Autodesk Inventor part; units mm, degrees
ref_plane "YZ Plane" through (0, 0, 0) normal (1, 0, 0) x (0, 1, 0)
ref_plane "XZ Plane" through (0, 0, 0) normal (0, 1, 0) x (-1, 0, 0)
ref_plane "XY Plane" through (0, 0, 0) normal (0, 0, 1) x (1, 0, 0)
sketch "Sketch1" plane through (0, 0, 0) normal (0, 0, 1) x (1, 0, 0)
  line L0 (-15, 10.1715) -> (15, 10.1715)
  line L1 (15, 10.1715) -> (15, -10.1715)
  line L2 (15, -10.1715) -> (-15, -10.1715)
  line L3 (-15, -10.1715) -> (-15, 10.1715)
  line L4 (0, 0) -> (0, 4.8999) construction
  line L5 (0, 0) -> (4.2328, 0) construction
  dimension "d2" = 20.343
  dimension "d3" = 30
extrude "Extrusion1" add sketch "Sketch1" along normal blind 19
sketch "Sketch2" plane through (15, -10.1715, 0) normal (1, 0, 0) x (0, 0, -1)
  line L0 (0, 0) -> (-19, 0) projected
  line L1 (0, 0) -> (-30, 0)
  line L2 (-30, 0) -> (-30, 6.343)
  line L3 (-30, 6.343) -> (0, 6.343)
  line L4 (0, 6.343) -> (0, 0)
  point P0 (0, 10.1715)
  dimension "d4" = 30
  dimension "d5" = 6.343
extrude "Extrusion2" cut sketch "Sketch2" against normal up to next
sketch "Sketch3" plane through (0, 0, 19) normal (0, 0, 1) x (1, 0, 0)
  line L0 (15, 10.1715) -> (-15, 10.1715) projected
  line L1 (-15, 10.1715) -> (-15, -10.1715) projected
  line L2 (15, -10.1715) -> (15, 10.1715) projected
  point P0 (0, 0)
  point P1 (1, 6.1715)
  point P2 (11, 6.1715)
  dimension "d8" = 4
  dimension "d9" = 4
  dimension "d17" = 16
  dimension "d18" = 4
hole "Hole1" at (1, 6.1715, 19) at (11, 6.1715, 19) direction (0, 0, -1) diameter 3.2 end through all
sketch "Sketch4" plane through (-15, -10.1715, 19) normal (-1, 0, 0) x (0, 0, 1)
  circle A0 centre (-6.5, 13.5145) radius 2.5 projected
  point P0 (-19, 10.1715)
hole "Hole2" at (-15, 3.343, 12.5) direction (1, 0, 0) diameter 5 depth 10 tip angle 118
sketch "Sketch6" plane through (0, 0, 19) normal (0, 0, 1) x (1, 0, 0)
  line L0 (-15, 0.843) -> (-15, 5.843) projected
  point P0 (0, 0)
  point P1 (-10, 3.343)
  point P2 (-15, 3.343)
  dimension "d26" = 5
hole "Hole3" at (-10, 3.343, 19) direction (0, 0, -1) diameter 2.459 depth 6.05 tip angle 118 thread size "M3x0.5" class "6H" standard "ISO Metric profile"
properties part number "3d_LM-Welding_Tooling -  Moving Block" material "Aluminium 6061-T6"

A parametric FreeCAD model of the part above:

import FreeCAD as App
import Part
import Sketcher


def add_polygon(sketch, points):
    """Adds a closed chain of lines whose ends are joined by coincident constraints."""
    first, n = sketch.GeometryCount, len(points)
    for a, b in zip(points, points[1:] + points[:1]):
        sketch.addGeometry(Part.LineSegment(App.Vector(*a, 0), App.Vector(*b, 0)), False)
    for i in range(n):
        sketch.addConstraint(Sketcher.Constraint("Coincident", first + i, 2, first + (i + 1) % n, 1))

doc = App.newDocument("Part")
body = doc.addObject("PartDesign::Body", "Body")

# Sketch on XY plane
sketch1 = body.newObject("Sketcher::SketchObject", "Sketch")
sketch1.AttachmentSupport = (doc.getObject("XY_Plane"), [""])
sketch1.MapMode = "FlatFace"
add_polygon(sketch1, [(15, 10), (-15, 10), (-15, -10), (15, -10)])  # lines 0-3
sketch1.addConstraint([
    Sketcher.Constraint("Horizontal", 0),
    Sketcher.Constraint("Vertical", 1),
    Sketcher.Constraint("Horizontal", 2),
    Sketcher.Constraint("Vertical", 3),
    Sketcher.Constraint("Symmetric", 0, 2, 2, 2, -1, 1),
    Sketcher.Constraint("DistanceX", 0, 2, 0, 1, 30.0),
    Sketcher.Constraint("DistanceY", 1, 2, 1, 1, 20.343),
])
pad1 = body.newObject("PartDesign::Pad", "Pad")
pad1.Profile = sketch1
pad1.Length = 19

# Sketch on YZ plane
sketch2 = body.newObject("Sketcher::SketchObject", "Sketch001")
sketch2.AttachmentSupport = (doc.getObject("YZ_Plane"), [""])
sketch2.MapMode = "FlatFace"
sketch2.AttachmentOffset = App.Placement(App.Vector(0, 0, 15), App.Rotation())
add_polygon(sketch2, [(-10, 30), (-10, 0), (-4, 0), (-4, 30)])  # lines 0-3
sketch2.addConstraint([
    Sketcher.Constraint("Vertical", 0),
    Sketcher.Constraint("Horizontal", 1),
    Sketcher.Constraint("Vertical", 2),
    Sketcher.Constraint("Horizontal", 3),
    Sketcher.Constraint("PointOnObject", 0, 2, -1),
    Sketcher.Constraint("DistanceY", 0, 2, 0, 1, 30.0),
    Sketcher.Constraint("DistanceX", 1, 1, 1, 2, 6.343),
    Sketcher.Constraint("DistanceX", 0, 2, -1, 1, 10.1715),
])
pocket1 = body.newObject("PartDesign::Pocket", "Pocket")
pocket1.Profile = sketch2
pocket1.Type = "UpToFirst"

# Sketch on XY plane
sketch3 = body.newObject("Sketcher::SketchObject", "Sketch002")
sketch3.AttachmentSupport = (doc.getObject("XY_Plane"), [""])
sketch3.MapMode = "FlatFace"
sketch3.AttachmentOffset = App.Placement(App.Vector(0, 0, 19), App.Rotation())
sketch3.addGeometry([
    Part.Circle(App.Vector(1, 6.2, 0), App.Vector(0, 0, 1), 1.6),
    Part.Circle(App.Vector(11, 6.2, 0), App.Vector(0, 0, 1), 1.6),
], False)
sketch3.addConstraint([
    Sketcher.Constraint("Equal", 0, 1),
    Sketcher.Constraint("Horizontal", 0, 3, 1, 3),
    Sketcher.Constraint("Diameter", 0, 3.2),
    Sketcher.Constraint("DistanceX", -1, 1, 0, 3, 1.0),
    Sketcher.Constraint("DistanceX", -1, 1, 1, 3, 11.0),
    Sketcher.Constraint("DistanceY", -1, 1, 0, 3, 6.1715),
])
doc.recompute()
hole = body.newObject("PartDesign::Hole", "Hole")
hole.Profile = sketch3
hole.ThreadType = "None"
hole.Diameter = 3.2
hole.DepthType = "ThroughAll"

# Sketch on YZ plane
sketch4 = body.newObject("Sketcher::SketchObject", "Sketch003")
sketch4.AttachmentSupport = (doc.getObject("YZ_Plane"), [""])
sketch4.MapMode = "FlatFace"
sketch4.AttachmentOffset = App.Placement(App.Vector(0, 0, -15), App.Rotation())
sketch4.addGeometry(Part.Circle(App.Vector(3.3, 12.5, 0), App.Vector(0, 0, 1), 2.5), False)
sketch4.addConstraint([
    Sketcher.Constraint("Diameter", 0, 5.0),
    Sketcher.Constraint("DistanceY", -1, 1, 0, 3, 12.5),
    Sketcher.Constraint("DistanceX", -1, 1, 0, 3, 3.343),
])
doc.recompute()
hole2 = body.newObject("PartDesign::Hole", "Hole001")
hole2.Profile = sketch4
hole2.ThreadType = "None"
hole2.Diameter = 5
hole2.DepthType = "Dimension"
hole2.Depth = 10
hole2.DrillPoint = "Angled"
hole2.DrillPointAngle = 118
hole2.Reversed = True

# Sketch on XY plane
sketch5 = body.newObject("Sketcher::SketchObject", "Sketch004")
sketch5.AttachmentSupport = (doc.getObject("XY_Plane"), [""])
sketch5.MapMode = "FlatFace"
sketch5.AttachmentOffset = App.Placement(App.Vector(0, 0, 19), App.Rotation())
sketch5.addGeometry(Part.Circle(App.Vector(-10, 3.3, 0), App.Vector(0, 0, 1), 1.2), False)
sketch5.addConstraint([
    Sketcher.Constraint("Diameter", 0, 2.459),
    Sketcher.Constraint("DistanceX", 0, 3, -1, 1, 10.0),
    Sketcher.Constraint("DistanceY", -1, 1, 0, 3, 3.343),
])
doc.recompute()
hole3 = body.newObject("PartDesign::Hole", "Hole002")
hole3.Profile = sketch5
hole3.ThreadType = "None"
hole3.Diameter = 2.459
hole3.DepthType = "Dimension"
hole3.Depth = 6.05
hole3.DrillPoint = "Angled"
hole3.DrillPointAngle = 118

doc.recompute()
